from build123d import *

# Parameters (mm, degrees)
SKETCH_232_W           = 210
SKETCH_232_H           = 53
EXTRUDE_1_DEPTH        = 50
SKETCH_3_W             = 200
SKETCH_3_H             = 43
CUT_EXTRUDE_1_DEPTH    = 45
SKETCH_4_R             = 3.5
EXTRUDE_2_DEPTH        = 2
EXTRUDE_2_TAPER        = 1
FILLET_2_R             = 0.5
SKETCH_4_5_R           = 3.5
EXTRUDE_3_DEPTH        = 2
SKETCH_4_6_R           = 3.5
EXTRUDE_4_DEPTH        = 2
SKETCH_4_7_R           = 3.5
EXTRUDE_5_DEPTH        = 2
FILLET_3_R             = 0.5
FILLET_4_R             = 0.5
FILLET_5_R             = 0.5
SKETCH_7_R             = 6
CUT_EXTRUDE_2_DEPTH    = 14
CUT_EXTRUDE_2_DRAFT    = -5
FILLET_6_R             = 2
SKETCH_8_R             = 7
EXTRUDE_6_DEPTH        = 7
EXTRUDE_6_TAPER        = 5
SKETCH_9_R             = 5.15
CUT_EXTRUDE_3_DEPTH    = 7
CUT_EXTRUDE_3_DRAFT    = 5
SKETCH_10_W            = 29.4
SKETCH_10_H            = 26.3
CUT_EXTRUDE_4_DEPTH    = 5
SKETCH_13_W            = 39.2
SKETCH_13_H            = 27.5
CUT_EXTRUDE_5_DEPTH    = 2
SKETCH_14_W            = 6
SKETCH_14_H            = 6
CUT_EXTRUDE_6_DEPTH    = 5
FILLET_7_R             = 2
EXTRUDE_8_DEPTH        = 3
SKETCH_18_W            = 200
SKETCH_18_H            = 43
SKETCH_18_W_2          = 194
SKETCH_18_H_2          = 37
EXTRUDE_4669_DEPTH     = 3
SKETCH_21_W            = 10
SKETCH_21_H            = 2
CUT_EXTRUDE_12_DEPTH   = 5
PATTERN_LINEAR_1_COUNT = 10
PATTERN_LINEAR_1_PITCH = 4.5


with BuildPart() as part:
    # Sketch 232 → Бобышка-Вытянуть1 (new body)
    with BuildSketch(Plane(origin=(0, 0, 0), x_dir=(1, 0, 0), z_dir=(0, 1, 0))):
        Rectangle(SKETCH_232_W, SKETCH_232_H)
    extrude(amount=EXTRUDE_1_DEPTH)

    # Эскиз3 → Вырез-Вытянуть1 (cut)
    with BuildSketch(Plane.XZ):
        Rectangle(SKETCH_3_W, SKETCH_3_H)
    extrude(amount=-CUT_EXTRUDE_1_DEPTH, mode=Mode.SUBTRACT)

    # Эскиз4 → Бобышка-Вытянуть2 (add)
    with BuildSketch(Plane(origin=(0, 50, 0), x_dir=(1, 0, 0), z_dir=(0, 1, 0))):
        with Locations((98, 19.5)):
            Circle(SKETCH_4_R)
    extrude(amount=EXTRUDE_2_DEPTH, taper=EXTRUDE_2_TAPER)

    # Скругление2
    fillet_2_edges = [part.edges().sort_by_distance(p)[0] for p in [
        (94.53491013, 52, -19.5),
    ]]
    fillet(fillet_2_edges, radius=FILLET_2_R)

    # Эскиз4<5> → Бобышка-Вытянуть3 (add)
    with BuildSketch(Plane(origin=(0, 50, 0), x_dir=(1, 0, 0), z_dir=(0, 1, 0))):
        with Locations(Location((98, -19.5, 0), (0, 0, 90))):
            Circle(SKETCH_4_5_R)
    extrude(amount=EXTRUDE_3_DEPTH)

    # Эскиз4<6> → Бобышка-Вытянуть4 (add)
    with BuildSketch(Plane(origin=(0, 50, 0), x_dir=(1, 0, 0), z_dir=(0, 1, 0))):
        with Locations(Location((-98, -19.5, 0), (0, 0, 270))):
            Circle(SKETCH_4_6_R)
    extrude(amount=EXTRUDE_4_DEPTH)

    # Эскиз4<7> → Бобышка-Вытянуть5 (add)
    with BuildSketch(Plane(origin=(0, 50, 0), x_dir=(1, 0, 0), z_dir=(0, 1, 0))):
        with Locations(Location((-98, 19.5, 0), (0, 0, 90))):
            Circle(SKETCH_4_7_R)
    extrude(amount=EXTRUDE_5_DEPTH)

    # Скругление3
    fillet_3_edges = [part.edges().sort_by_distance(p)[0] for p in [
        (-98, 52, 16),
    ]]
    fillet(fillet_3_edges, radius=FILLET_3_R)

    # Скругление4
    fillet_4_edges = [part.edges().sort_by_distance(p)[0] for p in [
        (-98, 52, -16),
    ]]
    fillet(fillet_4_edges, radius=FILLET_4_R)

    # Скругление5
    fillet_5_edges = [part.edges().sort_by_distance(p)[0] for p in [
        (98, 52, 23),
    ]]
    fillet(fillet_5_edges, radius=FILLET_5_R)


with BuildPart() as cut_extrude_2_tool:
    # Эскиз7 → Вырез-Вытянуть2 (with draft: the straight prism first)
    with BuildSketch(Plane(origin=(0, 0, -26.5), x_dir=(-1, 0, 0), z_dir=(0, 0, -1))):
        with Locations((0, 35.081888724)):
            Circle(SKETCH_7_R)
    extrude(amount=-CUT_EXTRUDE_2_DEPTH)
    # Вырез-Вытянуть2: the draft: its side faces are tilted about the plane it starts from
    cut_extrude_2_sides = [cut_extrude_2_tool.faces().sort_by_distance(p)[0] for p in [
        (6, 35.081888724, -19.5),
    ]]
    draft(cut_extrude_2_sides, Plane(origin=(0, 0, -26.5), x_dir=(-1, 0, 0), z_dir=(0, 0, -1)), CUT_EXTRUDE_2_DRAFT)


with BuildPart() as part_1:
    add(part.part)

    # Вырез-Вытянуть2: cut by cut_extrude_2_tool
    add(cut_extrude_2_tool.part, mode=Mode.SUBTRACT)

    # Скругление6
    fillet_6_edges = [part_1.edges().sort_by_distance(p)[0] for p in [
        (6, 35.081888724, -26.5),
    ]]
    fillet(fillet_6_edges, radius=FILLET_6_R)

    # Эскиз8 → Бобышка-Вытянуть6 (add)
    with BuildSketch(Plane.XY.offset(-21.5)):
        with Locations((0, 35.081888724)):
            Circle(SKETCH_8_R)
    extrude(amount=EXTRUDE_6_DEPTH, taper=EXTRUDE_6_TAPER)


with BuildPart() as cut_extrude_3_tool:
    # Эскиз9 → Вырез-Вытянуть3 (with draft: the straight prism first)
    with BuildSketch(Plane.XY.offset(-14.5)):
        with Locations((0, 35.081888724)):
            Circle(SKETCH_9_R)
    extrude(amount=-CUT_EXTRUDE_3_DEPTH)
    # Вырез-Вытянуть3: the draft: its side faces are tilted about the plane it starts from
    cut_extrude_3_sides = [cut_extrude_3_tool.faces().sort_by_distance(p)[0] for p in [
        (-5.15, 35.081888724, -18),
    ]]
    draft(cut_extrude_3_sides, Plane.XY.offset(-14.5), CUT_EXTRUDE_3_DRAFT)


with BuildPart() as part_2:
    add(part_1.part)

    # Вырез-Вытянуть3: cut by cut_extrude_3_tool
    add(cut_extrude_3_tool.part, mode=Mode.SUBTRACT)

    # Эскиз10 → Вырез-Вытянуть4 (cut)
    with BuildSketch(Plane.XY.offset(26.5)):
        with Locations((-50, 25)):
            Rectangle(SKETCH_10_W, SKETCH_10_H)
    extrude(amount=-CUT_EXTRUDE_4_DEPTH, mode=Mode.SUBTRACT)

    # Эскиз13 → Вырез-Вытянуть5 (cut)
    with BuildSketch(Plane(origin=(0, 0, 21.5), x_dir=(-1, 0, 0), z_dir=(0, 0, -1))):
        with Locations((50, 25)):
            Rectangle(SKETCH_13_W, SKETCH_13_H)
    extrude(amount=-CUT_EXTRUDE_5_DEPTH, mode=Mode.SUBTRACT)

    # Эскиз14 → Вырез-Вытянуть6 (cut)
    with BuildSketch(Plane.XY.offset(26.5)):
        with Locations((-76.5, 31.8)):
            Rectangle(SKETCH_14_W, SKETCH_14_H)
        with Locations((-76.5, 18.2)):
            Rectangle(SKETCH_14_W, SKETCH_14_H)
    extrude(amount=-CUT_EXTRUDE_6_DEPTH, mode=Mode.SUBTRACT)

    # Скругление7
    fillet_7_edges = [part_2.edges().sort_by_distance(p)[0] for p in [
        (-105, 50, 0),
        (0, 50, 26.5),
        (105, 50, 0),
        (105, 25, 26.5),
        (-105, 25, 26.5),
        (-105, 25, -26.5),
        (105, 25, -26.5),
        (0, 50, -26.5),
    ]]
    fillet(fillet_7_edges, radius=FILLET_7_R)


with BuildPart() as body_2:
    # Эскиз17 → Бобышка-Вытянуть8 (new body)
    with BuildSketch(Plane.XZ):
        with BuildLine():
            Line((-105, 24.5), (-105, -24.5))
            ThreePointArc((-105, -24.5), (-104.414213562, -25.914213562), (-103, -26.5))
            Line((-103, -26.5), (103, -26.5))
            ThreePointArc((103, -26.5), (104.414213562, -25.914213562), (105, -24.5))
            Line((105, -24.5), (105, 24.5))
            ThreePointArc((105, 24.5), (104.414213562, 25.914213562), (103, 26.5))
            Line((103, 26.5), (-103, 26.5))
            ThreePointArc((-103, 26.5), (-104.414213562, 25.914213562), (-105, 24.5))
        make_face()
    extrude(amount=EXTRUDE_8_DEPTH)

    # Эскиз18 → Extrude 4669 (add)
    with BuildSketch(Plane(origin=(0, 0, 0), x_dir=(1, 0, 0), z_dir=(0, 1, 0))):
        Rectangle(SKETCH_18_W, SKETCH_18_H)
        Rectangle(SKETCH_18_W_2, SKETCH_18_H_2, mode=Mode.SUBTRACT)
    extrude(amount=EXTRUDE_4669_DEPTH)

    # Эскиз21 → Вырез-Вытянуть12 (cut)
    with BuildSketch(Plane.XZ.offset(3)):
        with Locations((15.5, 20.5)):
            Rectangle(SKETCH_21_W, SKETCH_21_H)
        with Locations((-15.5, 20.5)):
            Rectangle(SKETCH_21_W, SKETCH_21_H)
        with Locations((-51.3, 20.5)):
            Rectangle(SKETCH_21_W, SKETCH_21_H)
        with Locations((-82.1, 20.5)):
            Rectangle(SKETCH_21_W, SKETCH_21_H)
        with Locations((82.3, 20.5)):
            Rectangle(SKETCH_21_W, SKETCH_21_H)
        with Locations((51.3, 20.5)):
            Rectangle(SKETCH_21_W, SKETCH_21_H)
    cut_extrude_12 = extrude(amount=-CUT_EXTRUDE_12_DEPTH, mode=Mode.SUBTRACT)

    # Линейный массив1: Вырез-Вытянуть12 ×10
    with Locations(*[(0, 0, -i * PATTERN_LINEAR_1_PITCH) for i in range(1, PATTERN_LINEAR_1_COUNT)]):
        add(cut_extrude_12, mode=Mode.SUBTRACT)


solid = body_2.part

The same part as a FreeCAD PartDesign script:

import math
import FreeCAD as App
import Part
import Sketcher
Q = App.Units.Quantity


def edges_at(feature, points):
    """Names of the edges that pass closest to the given points."""
    edges = feature.Shape.Edges
    near = lambda p: min(range(len(edges)), key=lambda i: edges[i].distToShape(Part.Vertex(*p))[0])
    return sorted({f"Edge{near(p) + 1}" for p in points})


def faces_at(feature, points):
    """Names of the faces that lie closest to the given points."""
    faces = feature.Shape.Faces
    near = lambda p: min(range(len(faces)), key=lambda i: faces[i].distToShape(Part.Vertex(*p))[0])
    return sorted({f"Face{near(p) + 1}" for p in points})


def add_polygon(sketch, points):
    """Adds a closed chain of lines whose ends are joined by coincident constraints."""
    first, n = sketch.GeometryCount, len(points)
    for a, b in zip(points, points[1:] + points[:1]):
        sketch.addGeometry(Part.LineSegment(App.Vector(*a, 0), App.Vector(*b, 0)), False)
    for i in range(n):
        sketch.addConstraint(Sketcher.Constraint("Coincident", first + i, 2, first + (i + 1) % n, 1))

doc = App.newDocument("Part")
body = doc.addObject("PartDesign::Body", "Body")

# Sketch on XZ plane
sketch1 = doc.addObject("Sketcher::SketchObject", "Sketch")
body.addObject(sketch1)
sketch1.AttachmentSupport = (doc.XZ_Plane, [""])
sketch1.MapMode = "FlatFace"
add_polygon(sketch1, [(-105, -26), (-105, 26), (105, 26), (105, -26)])  # lines 0-3
sketch1.addConstraint([
    Sketcher.Constraint("Vertical", 0),
    Sketcher.Constraint("Horizontal", 1),
    Sketcher.Constraint("Vertical", 2),
    Sketcher.Constraint("Horizontal", 3),
    Sketcher.Constraint("Symmetric", 0, 2, 2, 2, -1, 1),
    Sketcher.Constraint("DistanceX", 1, 1, 1, 2, Q("210 mm")),
    Sketcher.Constraint("DistanceY", 0, 1, 0, 2, Q("53 mm")),
])
pad1 = doc.addObject("PartDesign::Pad", "Pad")
body.addObject(pad1)
pad1.Profile = sketch1
pad1.Length = 50
pad1.Reversed = True

# Sketch on XZ plane
sketch2 = doc.addObject("Sketcher::SketchObject", "Sketch001")
body.addObject(sketch2)
sketch2.AttachmentSupport = (doc.XZ_Plane, [""])
sketch2.MapMode = "FlatFace"
add_polygon(sketch2, [(-100, 22), (-100, -22), (100, -22), (100, 22)])  # lines 0-3
sketch2.addConstraint([
    Sketcher.Constraint("Vertical", 0),
    Sketcher.Constraint("Horizontal", 1),
    Sketcher.Constraint("Vertical", 2),
    Sketcher.Constraint("Horizontal", 3),
    Sketcher.Constraint("Symmetric", 0, 2, 2, 2, -1, 1),
    Sketcher.Constraint("DistanceX", 1, 1, 1, 2, Q("200 mm")),
    Sketcher.Constraint("DistanceY", 0, 2, 0, 1, Q("43 mm")),
])
pocket1 = doc.addObject("PartDesign::Pocket", "Pocket")
body.addObject(pocket1)
pocket1.Profile = sketch2
pocket1.Length = 45

# Sketch on XZ plane
sketch3 = doc.addObject("Sketcher::SketchObject", "Sketch002")
body.addObject(sketch3)
sketch3.AttachmentSupport = (doc.XZ_Plane, [""])
sketch3.MapMode = "FlatFace"
sketch3.AttachmentOffset = App.Placement(App.Vector(0, 0, -50), App.Rotation())
sketch3.addGeometry(Part.Circle(App.Vector(98, -19.5, 0), App.Vector(0, 0, 1), 3.5), False)
sketch3.addConstraint([
    Sketcher.Constraint("Diameter", 0, Q("7 mm")),
    Sketcher.Constraint("DistanceX", -1, 1, 0, 3, Q("98 mm")),
    Sketcher.Constraint("DistanceY", 0, 3, -1, 1, Q("19.5 mm")),
])
pad2 = doc.addObject("PartDesign::Pad", "Pad001")
body.addObject(pad2)
pad2.Profile = sketch3
pad2.Length = 2
pad2.Reversed = True
pad2.TaperAngle = -1
doc.recompute()

fillet = doc.addObject("PartDesign::Fillet", "Fillet")
body.addObject(fillet)
fillet.Base = (pad2, edges_at(pad2, [(94.535, 52, -19.5)]))
fillet.Radius = 0.5

# Sketch on XZ plane
sketch4 = doc.addObject("Sketcher::SketchObject", "Sketch003")
body.addObject(sketch4)
sketch4.AttachmentSupport = (doc.XZ_Plane, [""])
sketch4.MapMode = "FlatFace"
sketch4.AttachmentOffset = App.Placement(App.Vector(0, 0, -50), App.Rotation())
sketch4.addGeometry(Part.Circle(App.Vector(98, 19.5, 0), App.Vector(0, 0, 1), 3.5), False)
sketch4.addConstraint([
    Sketcher.Constraint("Diameter", 0, Q("7 mm")),
    Sketcher.Constraint("DistanceX", -1, 1, 0, 3, Q("98 mm")),
    Sketcher.Constraint("DistanceY", -1, 1, 0, 3, Q("19.5 mm")),
])
pad3 = doc.addObject("PartDesign::Pad", "Pad002")
body.addObject(pad3)
pad3.Profile = sketch4
pad3.Length = 2
pad3.Reversed = True

# Sketch on XZ plane
sketch5 = doc.addObject("Sketcher::SketchObject", "Sketch004")
body.addObject(sketch5)
sketch5.AttachmentSupport = (doc.XZ_Plane, [""])
sketch5.MapMode = "FlatFace"
sketch5.AttachmentOffset = App.Placement(App.Vector(0, 0, -50), App.Rotation())
sketch5.addGeometry(Part.Circle(App.Vector(-98, 19.5, 0), App.Vector(0, 0, 1), 3.5), False)
sketch5.addConstraint([
    Sketcher.Constraint("Diameter", 0, Q("7 mm")),
    Sketcher.Constraint("DistanceX", 0, 3, -1, 1, Q("98 mm")),
    Sketcher.Constraint("DistanceY", -1, 1, 0, 3, Q("19.5 mm")),
])
pad4 = doc.addObject("PartDesign::Pad", "Pad003")
body.addObject(pad4)
pad4.Profile = sketch5
pad4.Length = 2
pad4.Reversed = True

# Sketch on XZ plane
sketch6 = doc.addObject("Sketcher::SketchObject", "Sketch005")
body.addObject(sketch6)
sketch6.AttachmentSupport = (doc.XZ_Plane, [""])
sketch6.MapMode = "FlatFace"
sketch6.AttachmentOffset = App.Placement(App.Vector(0, 0, -50), App.Rotation())
sketch6.addGeometry(Part.Circle(App.Vector(-98, -19.5, 0), App.Vector(0, 0, 1), 3.5), False)
sketch6.addConstraint([
    Sketcher.Constraint("Diameter", 0, Q("7 mm")),
    Sketcher.Constraint("DistanceX", 0, 3, -1, 1, Q("98 mm")),
    Sketcher.Constraint("DistanceY", 0, 3, -1, 1, Q("19.5 mm")),
])
pad5 = doc.addObject("PartDesign::Pad", "Pad004")
body.addObject(pad5)
pad5.Profile = sketch6
pad5.Length = 2
pad5.Reversed = True
doc.recompute()

fillet2 = doc.addObject("PartDesign::Fillet", "Fillet001")
body.addObject(fillet2)
fillet2.Base = (pad5, edges_at(pad5, [(-98, 52, 16)]))
fillet2.Radius = 0.5
doc.recompute()

fillet3 = doc.addObject("PartDesign::Fillet", "Fillet002")
body.addObject(fillet3)
fillet3.Base = (fillet2, edges_at(fillet2, [(-98, 52, -16)]))
fillet3.Radius = 0.5
doc.recompute()

fillet4 = doc.addObject("PartDesign::Fillet", "Fillet003")
body.addObject(fillet4)
fillet4.Base = (fillet3, edges_at(fillet3, [(98, 52, 23)]))
fillet4.Radius = 0.5
body2 = doc.addObject("PartDesign::Body", "Body001")

# Sketch on XY plane
sketch7 = doc.addObject("Sketcher::SketchObject", "Sketch006")
body2.addObject(sketch7)
sketch7.AttachmentSupport = (doc.getObject("XY_Plane001"), [""])
sketch7.MapMode = "FlatFace"
sketch7.AttachmentOffset = App.Placement(App.Vector(0, 0, -26.5), App.Rotation())
sketch7.addGeometry(Part.Circle(App.Vector(0, 35, 0), App.Vector(0, 0, 1), 6), False)
sketch7.addConstraint([
    Sketcher.Constraint("PointOnObject", 0, 3, -2),
    Sketcher.Constraint("Diameter", 0, Q("12 mm")),
    Sketcher.Constraint("DistanceY", -1, 1, 0, 3, Q("35.081889 mm")),
])
pad6 = doc.addObject("PartDesign::Pad", "Pad005")
body2.addObject(pad6)
pad6.Profile = sketch7
pad6.Length = 14
doc.recompute()

datumplane = doc.addObject("PartDesign::Plane", "DatumPlane")
body2.addObject(datumplane)
datumplane.AttachmentSupport = (doc.getObject("XY_Plane001"), [""])
datumplane.MapMode = "FlatFace"
datumplane.AttachmentOffset = App.Placement(App.Vector(0, 0, -26.5), App.Rotation())
draft = doc.addObject("PartDesign::Draft", "Draft")
body2.addObject(draft)
draft.Base = (pad6, faces_at(pad6, [(6, 35.082, -19.5)]))
draft.NeutralPlane = (datumplane, [""])
draft.Angle = 5
draft.Reversed = False
doc.recompute()

boolean = doc.addObject("PartDesign::Boolean", "Boolean")
body.addObject(boolean)
boolean.Type = "Cut"
boolean.addObjects([body2])
doc.recompute()

fillet5 = doc.addObject("PartDesign::Fillet", "Fillet004")
body.addObject(fillet5)
fillet5.Base = (boolean, edges_at(boolean, [(6, 35.082, -26.5)]))
fillet5.Radius = 2

# Sketch on XY plane
sketch8 = doc.addObject("Sketcher::SketchObject", "Sketch007")
body.addObject(sketch8)
sketch8.AttachmentSupport = (doc.XY_Plane, [""])
sketch8.MapMode = "FlatFace"
sketch8.AttachmentOffset = App.Placement(App.Vector(0, 0, -21.5), App.Rotation())
sketch8.addGeometry(Part.Circle(App.Vector(0, 35, 0), App.Vector(0, 0, 1), 7), False)
sketch8.addConstraint([
    Sketcher.Constraint("PointOnObject", 0, 3, -2),
    Sketcher.Constraint("Diameter", 0, Q("14 mm")),
    Sketcher.Constraint("DistanceY", -1, 1, 0, 3, Q("35.081889 mm")),
])
pad7 = doc.addObject("PartDesign::Pad", "Pad006")
body.addObject(pad7)
pad7.Profile = sketch8
pad7.Length = 7
pad7.TaperAngle = -5
body3 = doc.addObject("PartDesign::Body", "Body002")

# Sketch on XY plane
sketch9 = doc.addObject("Sketcher::SketchObject", "Sketch008")
body3.addObject(sketch9)
sketch9.AttachmentSupport = (doc.getObject("XY_Plane002"), [""])
sketch9.MapMode = "FlatFace"
sketch9.AttachmentOffset = App.Placement(App.Vector(0, 0, -14.5), App.Rotation())
sketch9.addGeometry(Part.Circle(App.Vector(0, 35, 0), App.Vector(0, 0, 1), 5), False)
sketch9.addConstraint([
    Sketcher.Constraint("PointOnObject", 0, 3, -2),
    Sketcher.Constraint("Diameter", 0, Q("10.3 mm")),
    Sketcher.Constraint("DistanceY", -1, 1, 0, 3, Q("35.081889 mm")),
])
pad8 = doc.addObject("PartDesign::Pad", "Pad007")
body3.addObject(pad8)
pad8.Profile = sketch9
pad8.Length = 7
pad8.Reversed = True
doc.recompute()

datumplane2 = doc.addObject("PartDesign::Plane", "DatumPlane001")
body3.addObject(datumplane2)
datumplane2.AttachmentSupport = (doc.getObject("XY_Plane002"), [""])
datumplane2.MapMode = "FlatFace"
datumplane2.AttachmentOffset = App.Placement(App.Vector(0, 0, -14.5), App.Rotation())
draft2 = doc.addObject("PartDesign::Draft", "Draft001")
body3.addObject(draft2)
draft2.Base = (pad8, faces_at(pad8, [(-5.15, 35.082, -18)]))
draft2.NeutralPlane = (datumplane2, [""])
draft2.Angle = 5
draft2.Reversed = False
doc.recompute()

boolean2 = doc.addObject("PartDesign::Boolean", "Boolean001")
body.addObject(boolean2)
boolean2.Type = "Cut"
boolean2.addObjects([body3])

# Sketch on XY plane
sketch10 = doc.addObject("Sketcher::SketchObject", "Sketch009")
body.addObject(sketch10)
sketch10.AttachmentSupport = (doc.XY_Plane, [""])
sketch10.MapMode = "FlatFace"
sketch10.AttachmentOffset = App.Placement(App.Vector(0, 0, 26.5), App.Rotation())
add_polygon(sketch10, [(-65, 38), (-65, 12), (-35, 12), (-35, 38)])  # lines 0-3
sketch10.addConstraint([
    Sketcher.Constraint("Vertical", 0),
    Sketcher.Constraint("Horizontal", 1),
    Sketcher.Constraint("Vertical", 2),
    Sketcher.Constraint("Horizontal", 3),
    Sketcher.Constraint("DistanceX", 1, 1, 1, 2, Q("29.4 mm")),
    Sketcher.Constraint("DistanceY", 0, 2, 0, 1, Q("26.3 mm")),
    Sketcher.Constraint("DistanceX", 0, 2, -1, 1, Q("64.7 mm")),
    Sketcher.Constraint("DistanceY", -1, 1, 0, 2, Q("11.85 mm")),
])
pocket2 = doc.addObject("PartDesign::Pocket", "Pocket001")
body.addObject(pocket2)
pocket2.Profile = sketch10
pocket2.Length = 5

# Sketch on XY plane
sketch11 = doc.addObject("Sketcher::SketchObject", "Sketch010")
body.addObject(sketch11)
sketch11.AttachmentSupport = (doc.XY_Plane, [""])
sketch11.MapMode = "FlatFace"
sketch11.AttachmentOffset = App.Placement(App.Vector(0, 0, 21.5), App.Rotation())
add_polygon(sketch11, [(-30, 39), (-30, 11), (-70, 11), (-70, 39)])  # lines 0-3
sketch11.addConstraint([
    Sketcher.Constraint("Vertical", 0),
    Sketcher.Constraint("Horizontal", 1),
    Sketcher.Constraint("Vertical", 2),
    Sketcher.Constraint("Horizontal", 3),
    Sketcher.Constraint("DistanceX", 1, 2, 1, 1, Q("39.2 mm")),
    Sketcher.Constraint("DistanceY", 0, 2, 0, 1, Q("27.5 mm")),
    Sketcher.Constraint("DistanceX", 0, 2, -1, 1, Q("30.4 mm")),
    Sketcher.Constraint("DistanceY", -1, 1, 0, 2, Q("11.25 mm")),
])
pocket3 = doc.addObject("PartDesign::Pocket", "Pocket002")
body.addObject(pocket3)
pocket3.Profile = sketch11
pocket3.Length = 2
pocket3.Reversed = True

# Sketch on XY plane
sketch12 = doc.addObject("Sketcher::SketchObject", "Sketch011")
body.addObject(sketch12)
sketch12.AttachmentSupport = (doc.XY_Plane, [""])
sketch12.MapMode = "FlatFace"
sketch12.AttachmentOffset = App.Placement(App.Vector(0, 0, 26.5), App.Rotation())
add_polygon(sketch12, [(-80, 35), (-80, 29), (-74, 29), (-74, 35)])  # lines 0-3
add_polygon(sketch12, [(-80, 21), (-80, 15), (-74, 15), (-74, 21)])  # lines 4-7
sketch12.addConstraint([
    Sketcher.Constraint("Vertical", 0),
    Sketcher.Constraint("Horizontal", 1),
    Sketcher.Constraint("Vertical", 2),
    Sketcher.Constraint("Horizontal", 3),
    Sketcher.Constraint("Vertical", 4),
    Sketcher.Constraint("Horizontal", 5),
    Sketcher.Constraint("Vertical", 6),
    Sketcher.Constraint("Horizontal", 7),
    Sketcher.Constraint("Vertical", 3, 2, 4, 2),
    Sketcher.Constraint("Vertical", 2, 2, 5, 2),
    Sketcher.Constraint("Equal", 7, 0),
    Sketcher.Constraint("Equal", 2, 4),
    Sketcher.Constraint("DistanceX", 1, 1, 1, 2, Q("6 mm")),
    Sketcher.Constraint("DistanceX", 0, 2, -1, 1, Q("79.5 mm")),
    Sketcher.Constraint("DistanceY", -1, 1, 0, 2, Q("28.8 mm")),
    Sketcher.Constraint("DistanceY", -1, 1, 4, 2, Q("15.2 mm")),
])
pocket4 = doc.addObject("PartDesign::Pocket", "Pocket003")
body.addObject(pocket4)
pocket4.Profile = sketch12
pocket4.Length = 5
doc.recompute()

fillet6 = doc.addObject("PartDesign::Fillet", "Fillet005")
body.addObject(fillet6)
fillet6.Base = (pocket4, edges_at(pocket4, [
    (-105, 50, 0),
    (0, 50, 26.5),
    (105, 50, 0),
    (105, 25, 26.5),
    (-105, 25, 26.5),
    (-105, 25, -26.5),
    (105, 25, -26.5),
    (0, 50, -26.5),
]))
fillet6.Radius = 2
body4 = doc.addObject("PartDesign::Body", "Body003")

# Sketch on XZ plane
sketch13 = doc.addObject("Sketcher::SketchObject", "Sketch012")
body4.addObject(sketch13)
sketch13.AttachmentSupport = (doc.getObject("XZ_Plane003"), [""])
sketch13.MapMode = "FlatFace"
sketch13.addGeometry([
    Part.LineSegment(App.Vector(-105, 24.5, 0), App.Vector(-105, -24.5, 0)),  # 0
    Part.ArcOfCircle(Part.Circle(App.Vector(-103, -24.5, 0), App.Vector(0, 0, 1), 2), math.radians(-180), math.radians(-90)),  # 1
    Part.LineSegment(App.Vector(-103, -26.5, 0), App.Vector(103, -26.5, 0)),  # 2
    Part.ArcOfCircle(Part.Circle(App.Vector(103, -24.5, 0), App.Vector(0, 0, 1), 2), math.radians(-90), math.radians(0)),  # 3
    Part.LineSegment(App.Vector(105, -24.5, 0), App.Vector(105, 24.5, 0)),  # 4
    Part.ArcOfCircle(Part.Circle(App.Vector(103, 24.5, 0), App.Vector(0, 0, 1), 2), math.radians(0), math.radians(90)),  # 5
    Part.LineSegment(App.Vector(103, 26.5, 0), App.Vector(-103, 26.5, 0)),  # 6
    Part.ArcOfCircle(Part.Circle(App.Vector(-103, 24.5, 0), App.Vector(0, 0, 1), 2), math.radians(90), math.radians(180)),  # 7
], False)
sketch13.addConstraint([
    Sketcher.Constraint("Tangent", 0, 2, 1, 1),
    Sketcher.Constraint("Tangent", 1, 2, 2, 1),
    Sketcher.Constraint("Tangent", 2, 2, 3, 1),
    Sketcher.Constraint("Tangent", 3, 2, 4, 1),
    Sketcher.Constraint("Tangent", 4, 2, 5, 1),
    Sketcher.Constraint("Tangent", 5, 2, 6, 1),
    Sketcher.Constraint("Tangent", 6, 2, 7, 1),
    Sketcher.Constraint("Tangent", 7, 2, 0, 1),
    Sketcher.Constraint("Vertical", 0),
    Sketcher.Constraint("Horizontal", 2),
    Sketcher.Constraint("Vertical", 4),
    Sketcher.Constraint("Horizontal", 6),
    Sketcher.Constraint("Equal", 1, 3),
    Sketcher.Constraint("Equal", 3, 5),
    Sketcher.Constraint("Equal", 5, 7),
    Sketcher.Constraint("Symmetric", 1, 3, 5, 3, -1, 1),
    Sketcher.Constraint("Radius", 1, Q("2 mm")),
    Sketcher.Constraint("DistanceX", 2, 1, 2, 2, Q("206 mm")),
    Sketcher.Constraint("DistanceY", 0, 2, 0, 1, Q("49 mm")),
])
pad9 = doc.addObject("PartDesign::Pad", "Pad008")
body4.addObject(pad9)
pad9.Profile = sketch13
pad9.Length = 3

# Sketch on XZ plane
sketch14 = doc.addObject("Sketcher::SketchObject", "Sketch013")
body4.addObject(sketch14)
sketch14.AttachmentSupport = (doc.getObject("XZ_Plane003"), [""])
sketch14.MapMode = "FlatFace"
add_polygon(sketch14, [(-100, -22), (-100, 22), (100, 22), (100, -22)])  # lines 0-3
add_polygon(sketch14, [(97, 18), (-97, 18), (-97, -18), (97, -18)])  # lines 4-7
sketch14.addConstraint([
    Sketcher.Constraint("Vertical", 0),
    Sketcher.Constraint("Horizontal", 1),
    Sketcher.Constraint("Vertical", 2),
    Sketcher.Constraint("Horizontal", 3),
    Sketcher.Constraint("Horizontal", 4),
    Sketcher.Constraint("Vertical", 5),
    Sketcher.Constraint("Horizontal", 6),
    Sketcher.Constraint("Vertical", 7),
    Sketcher.Constraint("Symmetric", 0, 2, 2, 2, -1, 1),
    Sketcher.Constraint("Symmetric", 4, 2, 6, 2, -1, 1),
    Sketcher.Constraint("DistanceX", 1, 1, 1, 2, Q("200 mm")),
    Sketcher.Constraint("DistanceX", 4, 2, 4, 1, Q("194 mm")),
    Sketcher.Constraint("DistanceY", 0, 1, 0, 2, Q("43 mm")),
    Sketcher.Constraint("DistanceY", 5, 2, 5, 1, Q("37 mm")),
])
pad10 = doc.addObject("PartDesign::Pad", "Pad009")
body4.addObject(pad10)
pad10.Profile = sketch14
pad10.Length = 3
pad10.Reversed = True

# Sketch on XZ plane
sketch15 = doc.addObject("Sketcher::SketchObject", "Sketch014")
body4.addObject(sketch15)
sketch15.AttachmentSupport = (doc.getObject("XZ_Plane003"), [""])
sketch15.MapMode = "FlatFace"
sketch15.AttachmentOffset = App.Placement(App.Vector(0, 0, 3), App.Rotation())
add_polygon(sketch15, [(10.5, 21.5), (10.5, 19.5), (20.5, 19.5), (20.5, 21.5)])  # lines 0-3
add_polygon(sketch15, [(-20.5, 21.5), (-20.5, 19.5), (-10.5, 19.5), (-10.5, 21.5)])  # lines 4-7
add_polygon(sketch15, [(-56.3, 21.5), (-56.3, 19.5), (-46.3, 19.5), (-46.3, 21.5)])  # lines 8-11
add_polygon(sketch15, [(-87.1, 21.5), (-87.1, 19.5), (-77.1, 19.5), (-77.1, 21.5)])  # lines 12-15
add_polygon(sketch15, [(77.3, 21.5), (77.3, 19.5), (87.3, 19.5), (87.3, 21.5)])  # lines 16-19
add_polygon(sketch15, [(46.3, 21.5), (46.3, 19.5), (56.3, 19.5), (56.3, 21.5)])  # lines 20-23
sketch15.addConstraint([
    Sketcher.Constraint("Vertical", 0),
    Sketcher.Constraint("Horizontal", 1),
    Sketcher.Constraint("Vertical", 2),
    Sketcher.Constraint("Horizontal", 3),
    Sketcher.Constraint("Vertical", 4),
    Sketcher.Constraint("Horizontal", 5),
    Sketcher.Constraint("Vertical", 6),
    Sketcher.Constraint("Horizontal", 7),
    Sketcher.Constraint("Vertical", 8),
    Sketcher.Constraint("Horizontal", 9),
    Sketcher.Constraint("Vertical", 10),
    Sketcher.Constraint("Horizontal", 11),
    Sketcher.Constraint("Vertical", 12),
    Sketcher.Constraint("Horizontal", 13),
    Sketcher.Constraint("Vertical", 14),
    Sketcher.Constraint("Horizontal", 15),
    Sketcher.Constraint("Vertical", 16),
    Sketcher.Constraint("Horizontal", 17),
    Sketcher.Constraint("Vertical", 18),
    Sketcher.Constraint("Horizontal", 19),
    Sketcher.Constraint("Vertical", 20),
    Sketcher.Constraint("Horizontal", 21),
    Sketcher.Constraint("Vertical", 22),
    Sketcher.Constraint("Horizontal", 23),
    Sketcher.Constraint("Symmetric", 1, 2, 4, 2, -2),
    Sketcher.Constraint("Symmetric", 3, 2, 6, 2, -2),
    Sketcher.Constraint("Symmetric", 9, 2, 20, 2, -2),
    Sketcher.Constraint("Symmetric", 11, 2, 22, 2, -2),
    Sketcher.Constraint("Horizontal", 5, 2, 8, 2),
    Sketcher.Constraint("Horizontal", 7, 2, 10, 2),
    Sketcher.Constraint("Horizontal", 9, 2, 12, 2),
    Sketcher.Constraint("Horizontal", 11, 2, 14, 2),
    Sketcher.Constraint("Horizontal", 13, 2, 16, 2),
    Sketcher.Constraint("Horizontal", 15, 2, 18, 2),
    Sketcher.Constraint("Equal", 7, 9),
    Sketcher.Constraint("Equal", 11, 13),
    Sketcher.Constraint("Equal", 15, 17),
    Sketcher.Constraint("DistanceX", 1, 1, 1, 2, Q("10 mm")),
    Sketcher.Constraint("DistanceY", 0, 2, 0, 1, Q("2 mm")),
    Sketcher.Constraint("DistanceX", 4, 2, 0, 2, Q("31 mm")),
    Sketcher.Constraint("DistanceX", 20, 2, 16, 2, Q("31 mm")),
    Sketcher.Constraint("DistanceY", -1, 1, 0, 2, Q("19.5 mm")),
    Sketcher.Constraint("DistanceX", 8, 2, -1, 1, Q("56.3 mm")),
    Sketcher.Constraint("DistanceX", 12, 2, -1, 1, Q("87.1 mm")),
])
pocket5 = doc.addObject("PartDesign::Pocket", "Pocket004")
body4.addObject(pocket5)
pocket5.Profile = sketch15
pocket5.Length = 5
doc.recompute()

linearpattern = doc.addObject("PartDesign::LinearPattern", "LinearPattern")
body4.addObject(linearpattern)
linearpattern.Originals = [pocket5]
linearpattern.Direction = (doc.getObject("Z_Axis003"), [""])
linearpattern.Mode = "offset"
linearpattern.Offset = 4.5
linearpattern.Occurrences = 10
linearpattern.Reversed = True
body4.Tip = linearpattern
body.Visibility = False

doc.recompute()
